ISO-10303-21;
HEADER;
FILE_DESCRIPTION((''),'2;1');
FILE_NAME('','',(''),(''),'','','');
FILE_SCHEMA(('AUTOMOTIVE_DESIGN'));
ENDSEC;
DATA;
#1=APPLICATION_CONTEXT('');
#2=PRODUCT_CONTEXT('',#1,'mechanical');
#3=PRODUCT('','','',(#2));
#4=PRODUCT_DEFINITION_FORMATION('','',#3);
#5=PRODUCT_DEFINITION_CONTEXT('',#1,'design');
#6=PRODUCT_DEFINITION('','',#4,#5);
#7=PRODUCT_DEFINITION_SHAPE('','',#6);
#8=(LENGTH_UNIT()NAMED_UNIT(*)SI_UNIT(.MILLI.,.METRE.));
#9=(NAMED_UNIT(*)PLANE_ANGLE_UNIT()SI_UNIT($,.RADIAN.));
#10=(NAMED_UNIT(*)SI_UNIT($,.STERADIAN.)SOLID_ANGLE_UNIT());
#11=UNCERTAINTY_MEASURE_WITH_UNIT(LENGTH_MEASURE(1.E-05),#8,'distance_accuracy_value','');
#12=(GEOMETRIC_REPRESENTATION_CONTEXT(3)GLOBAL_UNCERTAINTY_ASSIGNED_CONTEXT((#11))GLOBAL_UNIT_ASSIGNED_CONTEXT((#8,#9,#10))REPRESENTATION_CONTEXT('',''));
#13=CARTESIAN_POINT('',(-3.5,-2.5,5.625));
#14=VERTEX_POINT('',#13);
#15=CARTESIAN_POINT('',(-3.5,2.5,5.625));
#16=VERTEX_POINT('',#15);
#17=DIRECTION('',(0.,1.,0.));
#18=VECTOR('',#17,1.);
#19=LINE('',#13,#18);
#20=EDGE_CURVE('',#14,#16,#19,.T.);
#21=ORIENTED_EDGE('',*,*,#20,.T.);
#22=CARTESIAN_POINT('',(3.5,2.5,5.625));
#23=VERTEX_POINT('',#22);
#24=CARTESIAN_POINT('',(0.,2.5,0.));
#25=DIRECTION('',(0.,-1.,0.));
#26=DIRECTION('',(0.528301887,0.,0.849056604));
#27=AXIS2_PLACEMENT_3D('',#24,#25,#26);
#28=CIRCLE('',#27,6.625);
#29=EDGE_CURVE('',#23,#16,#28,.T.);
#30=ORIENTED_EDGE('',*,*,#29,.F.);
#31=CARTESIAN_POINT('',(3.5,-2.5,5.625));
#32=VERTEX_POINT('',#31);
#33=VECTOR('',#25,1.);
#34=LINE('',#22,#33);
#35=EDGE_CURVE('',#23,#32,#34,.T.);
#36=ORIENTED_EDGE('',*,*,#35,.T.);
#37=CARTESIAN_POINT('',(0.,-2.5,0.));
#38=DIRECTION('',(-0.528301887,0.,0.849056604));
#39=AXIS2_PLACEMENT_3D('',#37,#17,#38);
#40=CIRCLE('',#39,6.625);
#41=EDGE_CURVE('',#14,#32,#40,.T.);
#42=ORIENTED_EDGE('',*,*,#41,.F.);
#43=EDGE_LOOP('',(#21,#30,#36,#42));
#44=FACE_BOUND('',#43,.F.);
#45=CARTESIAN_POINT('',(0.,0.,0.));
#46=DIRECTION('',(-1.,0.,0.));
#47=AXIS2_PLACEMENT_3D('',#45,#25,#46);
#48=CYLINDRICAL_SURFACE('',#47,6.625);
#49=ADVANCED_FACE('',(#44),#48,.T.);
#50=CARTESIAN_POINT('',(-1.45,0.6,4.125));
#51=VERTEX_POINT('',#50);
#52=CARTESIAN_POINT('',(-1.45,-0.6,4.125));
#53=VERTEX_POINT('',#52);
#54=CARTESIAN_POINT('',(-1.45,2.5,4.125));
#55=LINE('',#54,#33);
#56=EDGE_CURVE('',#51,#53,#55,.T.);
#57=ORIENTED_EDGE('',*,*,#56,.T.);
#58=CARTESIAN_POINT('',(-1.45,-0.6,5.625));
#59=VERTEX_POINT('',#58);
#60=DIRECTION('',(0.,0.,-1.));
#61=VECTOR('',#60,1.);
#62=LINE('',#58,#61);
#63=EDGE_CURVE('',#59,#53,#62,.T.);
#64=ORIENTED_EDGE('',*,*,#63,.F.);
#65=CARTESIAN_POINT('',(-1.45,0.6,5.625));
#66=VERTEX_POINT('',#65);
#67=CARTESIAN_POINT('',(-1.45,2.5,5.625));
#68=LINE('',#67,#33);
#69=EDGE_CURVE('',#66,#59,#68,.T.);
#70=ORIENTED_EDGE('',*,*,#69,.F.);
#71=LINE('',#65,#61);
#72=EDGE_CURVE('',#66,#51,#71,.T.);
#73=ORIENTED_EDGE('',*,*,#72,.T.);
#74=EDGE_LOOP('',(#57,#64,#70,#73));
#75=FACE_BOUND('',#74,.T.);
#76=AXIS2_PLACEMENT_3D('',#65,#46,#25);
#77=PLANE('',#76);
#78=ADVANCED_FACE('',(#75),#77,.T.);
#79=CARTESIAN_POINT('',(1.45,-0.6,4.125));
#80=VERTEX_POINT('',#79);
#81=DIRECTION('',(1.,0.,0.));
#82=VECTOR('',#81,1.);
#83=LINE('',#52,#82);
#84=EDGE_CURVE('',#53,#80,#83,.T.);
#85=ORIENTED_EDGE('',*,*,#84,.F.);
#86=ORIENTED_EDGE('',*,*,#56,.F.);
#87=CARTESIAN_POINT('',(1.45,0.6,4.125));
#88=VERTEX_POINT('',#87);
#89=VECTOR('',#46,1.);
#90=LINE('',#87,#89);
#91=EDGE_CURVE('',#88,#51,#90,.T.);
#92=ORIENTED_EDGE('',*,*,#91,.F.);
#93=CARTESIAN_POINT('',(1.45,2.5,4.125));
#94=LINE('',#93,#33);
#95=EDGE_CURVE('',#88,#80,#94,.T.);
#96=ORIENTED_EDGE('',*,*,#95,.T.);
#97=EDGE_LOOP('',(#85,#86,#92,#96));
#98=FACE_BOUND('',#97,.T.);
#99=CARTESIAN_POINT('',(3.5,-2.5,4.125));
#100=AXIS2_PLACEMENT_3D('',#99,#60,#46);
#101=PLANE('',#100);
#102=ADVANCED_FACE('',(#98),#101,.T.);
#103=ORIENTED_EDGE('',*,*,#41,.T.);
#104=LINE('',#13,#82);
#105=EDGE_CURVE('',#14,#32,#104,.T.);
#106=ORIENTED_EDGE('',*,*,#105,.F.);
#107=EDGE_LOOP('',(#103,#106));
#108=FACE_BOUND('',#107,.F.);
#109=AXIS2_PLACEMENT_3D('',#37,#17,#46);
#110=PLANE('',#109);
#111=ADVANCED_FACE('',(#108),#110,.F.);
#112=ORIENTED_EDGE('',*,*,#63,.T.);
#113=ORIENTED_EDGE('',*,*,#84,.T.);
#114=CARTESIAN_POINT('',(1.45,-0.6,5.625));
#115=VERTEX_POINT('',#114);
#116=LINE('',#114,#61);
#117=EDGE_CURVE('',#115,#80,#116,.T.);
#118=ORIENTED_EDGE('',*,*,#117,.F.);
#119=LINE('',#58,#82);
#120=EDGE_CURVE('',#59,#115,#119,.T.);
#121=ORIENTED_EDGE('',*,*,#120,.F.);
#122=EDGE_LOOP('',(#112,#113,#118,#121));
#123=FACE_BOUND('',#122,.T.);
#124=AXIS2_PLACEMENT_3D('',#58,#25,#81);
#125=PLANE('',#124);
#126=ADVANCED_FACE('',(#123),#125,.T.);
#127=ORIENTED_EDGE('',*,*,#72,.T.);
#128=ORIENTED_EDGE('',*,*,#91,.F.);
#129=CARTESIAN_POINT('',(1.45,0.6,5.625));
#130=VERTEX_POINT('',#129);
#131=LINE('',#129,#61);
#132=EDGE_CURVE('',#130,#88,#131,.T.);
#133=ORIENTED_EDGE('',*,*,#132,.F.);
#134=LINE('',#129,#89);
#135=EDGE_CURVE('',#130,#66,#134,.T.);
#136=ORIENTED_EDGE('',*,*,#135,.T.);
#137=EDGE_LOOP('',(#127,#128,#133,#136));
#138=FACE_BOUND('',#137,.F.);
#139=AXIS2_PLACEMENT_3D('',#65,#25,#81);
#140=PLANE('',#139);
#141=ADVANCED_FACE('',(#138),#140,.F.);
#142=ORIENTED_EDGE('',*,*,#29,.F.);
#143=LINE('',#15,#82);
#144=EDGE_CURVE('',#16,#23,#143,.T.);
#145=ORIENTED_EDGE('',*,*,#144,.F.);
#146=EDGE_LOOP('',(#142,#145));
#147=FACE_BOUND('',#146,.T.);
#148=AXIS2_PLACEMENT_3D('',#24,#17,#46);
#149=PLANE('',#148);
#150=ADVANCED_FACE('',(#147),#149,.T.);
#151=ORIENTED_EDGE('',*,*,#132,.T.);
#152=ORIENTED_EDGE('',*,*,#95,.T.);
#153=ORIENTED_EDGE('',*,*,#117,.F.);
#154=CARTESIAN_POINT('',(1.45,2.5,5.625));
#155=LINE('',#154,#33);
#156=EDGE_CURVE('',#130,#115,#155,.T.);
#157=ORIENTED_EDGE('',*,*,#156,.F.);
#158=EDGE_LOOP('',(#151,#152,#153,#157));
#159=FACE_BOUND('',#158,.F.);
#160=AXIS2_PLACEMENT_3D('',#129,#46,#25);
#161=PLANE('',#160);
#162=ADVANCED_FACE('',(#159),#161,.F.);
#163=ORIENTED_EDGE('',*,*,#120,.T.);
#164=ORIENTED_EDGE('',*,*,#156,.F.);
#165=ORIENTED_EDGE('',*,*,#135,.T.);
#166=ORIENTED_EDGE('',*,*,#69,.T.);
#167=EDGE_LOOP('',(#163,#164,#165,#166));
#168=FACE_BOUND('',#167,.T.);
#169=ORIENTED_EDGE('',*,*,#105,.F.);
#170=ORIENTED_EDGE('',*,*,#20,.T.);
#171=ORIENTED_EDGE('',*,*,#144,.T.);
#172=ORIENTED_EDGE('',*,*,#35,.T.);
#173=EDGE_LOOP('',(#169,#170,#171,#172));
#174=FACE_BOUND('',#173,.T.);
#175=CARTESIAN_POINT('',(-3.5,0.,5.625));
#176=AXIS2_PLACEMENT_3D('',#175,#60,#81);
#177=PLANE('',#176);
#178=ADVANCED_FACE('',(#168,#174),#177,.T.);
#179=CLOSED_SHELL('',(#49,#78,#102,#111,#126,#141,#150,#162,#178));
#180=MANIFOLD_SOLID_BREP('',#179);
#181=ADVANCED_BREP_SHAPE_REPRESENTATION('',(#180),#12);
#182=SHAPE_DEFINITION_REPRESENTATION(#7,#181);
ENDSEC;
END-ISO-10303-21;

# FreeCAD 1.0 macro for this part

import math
import FreeCAD as App
import Part
import Sketcher

V = App.Vector
Q = App.Units.Quantity

doc = App.newDocument("Part")
body = doc.addObject("PartDesign::Body", "Body")

# Sketch on XZ plane
sketch1 = doc.addObject("Sketcher::SketchObject", "Sketch")
body.addObject(sketch1)
sketch1.AttachmentSupport = (doc.XZ_Plane, [""])
sketch1.MapMode = "FlatFace"
sketch1.addGeometry([
    Part.LineSegment(V(4, 6, 0), V(-4, 6, 0)),
    Part.ArcOfCircle(Part.Circle(V(0, 0, 0), V(0, 0, 1), 7), math.radians(58), math.radians(122)),
], False)
sketch1.addConstraint([
    Sketcher.Constraint("Coincident", 0, 1, 1, 1),
    Sketcher.Constraint("Coincident", 1, 2, 0, 2),
    Sketcher.Constraint("Horizontal", 0),
    Sketcher.Constraint("Coincident", 1, 3, -1, 1),
    Sketcher.Constraint("DistanceX", 0, 2, 0, 1, Q("7 mm")),
    Sketcher.Constraint("Radius", 1, Q("6.625 mm")),
])
pad1 = doc.addObject("PartDesign::Pad", "Pad")
body.addObject(pad1)
pad1.Profile = sketch1
pad1.Length = 5
pad1.Midplane = True

# Sketch on XY plane
sketch2 = doc.addObject("Sketcher::SketchObject", "Sketch001")
body.addObject(sketch2)
sketch2.AttachmentSupport = (doc.XY_Plane, [""])
sketch2.MapMode = "FlatFace"
sketch2.AttachmentOffset = App.Placement(V(0, 0, 5.625), App.Rotation())
sketch2.addGeometry([
    Part.LineSegment(V(1.4, -0.6, 0), V(-1.4, -0.6, 0)),
    Part.LineSegment(V(-1.4, -0.6, 0), V(-1.4, 0.6, 0)),
    Part.LineSegment(V(-1.4, 0.6, 0), V(1.4, 0.6, 0)),
    Part.LineSegment(V(1.4, 0.6, 0), V(1.4, -0.6, 0)),
], False)
sketch2.addConstraint([
    Sketcher.Constraint("Coincident", 0, 2, 1, 1),
    Sketcher.Constraint("Coincident", 1, 2, 2, 1),
    Sketcher.Constraint("Coincident", 2, 2, 3, 1),
    Sketcher.Constraint("Coincident", 3, 2, 0, 1),
    Sketcher.Constraint("Horizontal", 0),
    Sketcher.Constraint("Vertical", 1),
    Sketcher.Constraint("Horizontal", 2),
    Sketcher.Constraint("Vertical", 3),
    Sketcher.Constraint("Symmetric", 0, 2, 2, 2, -1, 1),
    Sketcher.Constraint("DistanceX", 0, 2, 0, 1, Q("2.9 mm")),
    Sketcher.Constraint("DistanceY", 1, 1, 1, 2, Q("1.2 mm")),
])
pad2 = doc.addObject("PartDesign::Pad", "Pad001")
body.addObject(pad2)
pad2.Profile = sketch2
pad2.Length = 1.5
pad2.Reversed = True

doc.recompute()
